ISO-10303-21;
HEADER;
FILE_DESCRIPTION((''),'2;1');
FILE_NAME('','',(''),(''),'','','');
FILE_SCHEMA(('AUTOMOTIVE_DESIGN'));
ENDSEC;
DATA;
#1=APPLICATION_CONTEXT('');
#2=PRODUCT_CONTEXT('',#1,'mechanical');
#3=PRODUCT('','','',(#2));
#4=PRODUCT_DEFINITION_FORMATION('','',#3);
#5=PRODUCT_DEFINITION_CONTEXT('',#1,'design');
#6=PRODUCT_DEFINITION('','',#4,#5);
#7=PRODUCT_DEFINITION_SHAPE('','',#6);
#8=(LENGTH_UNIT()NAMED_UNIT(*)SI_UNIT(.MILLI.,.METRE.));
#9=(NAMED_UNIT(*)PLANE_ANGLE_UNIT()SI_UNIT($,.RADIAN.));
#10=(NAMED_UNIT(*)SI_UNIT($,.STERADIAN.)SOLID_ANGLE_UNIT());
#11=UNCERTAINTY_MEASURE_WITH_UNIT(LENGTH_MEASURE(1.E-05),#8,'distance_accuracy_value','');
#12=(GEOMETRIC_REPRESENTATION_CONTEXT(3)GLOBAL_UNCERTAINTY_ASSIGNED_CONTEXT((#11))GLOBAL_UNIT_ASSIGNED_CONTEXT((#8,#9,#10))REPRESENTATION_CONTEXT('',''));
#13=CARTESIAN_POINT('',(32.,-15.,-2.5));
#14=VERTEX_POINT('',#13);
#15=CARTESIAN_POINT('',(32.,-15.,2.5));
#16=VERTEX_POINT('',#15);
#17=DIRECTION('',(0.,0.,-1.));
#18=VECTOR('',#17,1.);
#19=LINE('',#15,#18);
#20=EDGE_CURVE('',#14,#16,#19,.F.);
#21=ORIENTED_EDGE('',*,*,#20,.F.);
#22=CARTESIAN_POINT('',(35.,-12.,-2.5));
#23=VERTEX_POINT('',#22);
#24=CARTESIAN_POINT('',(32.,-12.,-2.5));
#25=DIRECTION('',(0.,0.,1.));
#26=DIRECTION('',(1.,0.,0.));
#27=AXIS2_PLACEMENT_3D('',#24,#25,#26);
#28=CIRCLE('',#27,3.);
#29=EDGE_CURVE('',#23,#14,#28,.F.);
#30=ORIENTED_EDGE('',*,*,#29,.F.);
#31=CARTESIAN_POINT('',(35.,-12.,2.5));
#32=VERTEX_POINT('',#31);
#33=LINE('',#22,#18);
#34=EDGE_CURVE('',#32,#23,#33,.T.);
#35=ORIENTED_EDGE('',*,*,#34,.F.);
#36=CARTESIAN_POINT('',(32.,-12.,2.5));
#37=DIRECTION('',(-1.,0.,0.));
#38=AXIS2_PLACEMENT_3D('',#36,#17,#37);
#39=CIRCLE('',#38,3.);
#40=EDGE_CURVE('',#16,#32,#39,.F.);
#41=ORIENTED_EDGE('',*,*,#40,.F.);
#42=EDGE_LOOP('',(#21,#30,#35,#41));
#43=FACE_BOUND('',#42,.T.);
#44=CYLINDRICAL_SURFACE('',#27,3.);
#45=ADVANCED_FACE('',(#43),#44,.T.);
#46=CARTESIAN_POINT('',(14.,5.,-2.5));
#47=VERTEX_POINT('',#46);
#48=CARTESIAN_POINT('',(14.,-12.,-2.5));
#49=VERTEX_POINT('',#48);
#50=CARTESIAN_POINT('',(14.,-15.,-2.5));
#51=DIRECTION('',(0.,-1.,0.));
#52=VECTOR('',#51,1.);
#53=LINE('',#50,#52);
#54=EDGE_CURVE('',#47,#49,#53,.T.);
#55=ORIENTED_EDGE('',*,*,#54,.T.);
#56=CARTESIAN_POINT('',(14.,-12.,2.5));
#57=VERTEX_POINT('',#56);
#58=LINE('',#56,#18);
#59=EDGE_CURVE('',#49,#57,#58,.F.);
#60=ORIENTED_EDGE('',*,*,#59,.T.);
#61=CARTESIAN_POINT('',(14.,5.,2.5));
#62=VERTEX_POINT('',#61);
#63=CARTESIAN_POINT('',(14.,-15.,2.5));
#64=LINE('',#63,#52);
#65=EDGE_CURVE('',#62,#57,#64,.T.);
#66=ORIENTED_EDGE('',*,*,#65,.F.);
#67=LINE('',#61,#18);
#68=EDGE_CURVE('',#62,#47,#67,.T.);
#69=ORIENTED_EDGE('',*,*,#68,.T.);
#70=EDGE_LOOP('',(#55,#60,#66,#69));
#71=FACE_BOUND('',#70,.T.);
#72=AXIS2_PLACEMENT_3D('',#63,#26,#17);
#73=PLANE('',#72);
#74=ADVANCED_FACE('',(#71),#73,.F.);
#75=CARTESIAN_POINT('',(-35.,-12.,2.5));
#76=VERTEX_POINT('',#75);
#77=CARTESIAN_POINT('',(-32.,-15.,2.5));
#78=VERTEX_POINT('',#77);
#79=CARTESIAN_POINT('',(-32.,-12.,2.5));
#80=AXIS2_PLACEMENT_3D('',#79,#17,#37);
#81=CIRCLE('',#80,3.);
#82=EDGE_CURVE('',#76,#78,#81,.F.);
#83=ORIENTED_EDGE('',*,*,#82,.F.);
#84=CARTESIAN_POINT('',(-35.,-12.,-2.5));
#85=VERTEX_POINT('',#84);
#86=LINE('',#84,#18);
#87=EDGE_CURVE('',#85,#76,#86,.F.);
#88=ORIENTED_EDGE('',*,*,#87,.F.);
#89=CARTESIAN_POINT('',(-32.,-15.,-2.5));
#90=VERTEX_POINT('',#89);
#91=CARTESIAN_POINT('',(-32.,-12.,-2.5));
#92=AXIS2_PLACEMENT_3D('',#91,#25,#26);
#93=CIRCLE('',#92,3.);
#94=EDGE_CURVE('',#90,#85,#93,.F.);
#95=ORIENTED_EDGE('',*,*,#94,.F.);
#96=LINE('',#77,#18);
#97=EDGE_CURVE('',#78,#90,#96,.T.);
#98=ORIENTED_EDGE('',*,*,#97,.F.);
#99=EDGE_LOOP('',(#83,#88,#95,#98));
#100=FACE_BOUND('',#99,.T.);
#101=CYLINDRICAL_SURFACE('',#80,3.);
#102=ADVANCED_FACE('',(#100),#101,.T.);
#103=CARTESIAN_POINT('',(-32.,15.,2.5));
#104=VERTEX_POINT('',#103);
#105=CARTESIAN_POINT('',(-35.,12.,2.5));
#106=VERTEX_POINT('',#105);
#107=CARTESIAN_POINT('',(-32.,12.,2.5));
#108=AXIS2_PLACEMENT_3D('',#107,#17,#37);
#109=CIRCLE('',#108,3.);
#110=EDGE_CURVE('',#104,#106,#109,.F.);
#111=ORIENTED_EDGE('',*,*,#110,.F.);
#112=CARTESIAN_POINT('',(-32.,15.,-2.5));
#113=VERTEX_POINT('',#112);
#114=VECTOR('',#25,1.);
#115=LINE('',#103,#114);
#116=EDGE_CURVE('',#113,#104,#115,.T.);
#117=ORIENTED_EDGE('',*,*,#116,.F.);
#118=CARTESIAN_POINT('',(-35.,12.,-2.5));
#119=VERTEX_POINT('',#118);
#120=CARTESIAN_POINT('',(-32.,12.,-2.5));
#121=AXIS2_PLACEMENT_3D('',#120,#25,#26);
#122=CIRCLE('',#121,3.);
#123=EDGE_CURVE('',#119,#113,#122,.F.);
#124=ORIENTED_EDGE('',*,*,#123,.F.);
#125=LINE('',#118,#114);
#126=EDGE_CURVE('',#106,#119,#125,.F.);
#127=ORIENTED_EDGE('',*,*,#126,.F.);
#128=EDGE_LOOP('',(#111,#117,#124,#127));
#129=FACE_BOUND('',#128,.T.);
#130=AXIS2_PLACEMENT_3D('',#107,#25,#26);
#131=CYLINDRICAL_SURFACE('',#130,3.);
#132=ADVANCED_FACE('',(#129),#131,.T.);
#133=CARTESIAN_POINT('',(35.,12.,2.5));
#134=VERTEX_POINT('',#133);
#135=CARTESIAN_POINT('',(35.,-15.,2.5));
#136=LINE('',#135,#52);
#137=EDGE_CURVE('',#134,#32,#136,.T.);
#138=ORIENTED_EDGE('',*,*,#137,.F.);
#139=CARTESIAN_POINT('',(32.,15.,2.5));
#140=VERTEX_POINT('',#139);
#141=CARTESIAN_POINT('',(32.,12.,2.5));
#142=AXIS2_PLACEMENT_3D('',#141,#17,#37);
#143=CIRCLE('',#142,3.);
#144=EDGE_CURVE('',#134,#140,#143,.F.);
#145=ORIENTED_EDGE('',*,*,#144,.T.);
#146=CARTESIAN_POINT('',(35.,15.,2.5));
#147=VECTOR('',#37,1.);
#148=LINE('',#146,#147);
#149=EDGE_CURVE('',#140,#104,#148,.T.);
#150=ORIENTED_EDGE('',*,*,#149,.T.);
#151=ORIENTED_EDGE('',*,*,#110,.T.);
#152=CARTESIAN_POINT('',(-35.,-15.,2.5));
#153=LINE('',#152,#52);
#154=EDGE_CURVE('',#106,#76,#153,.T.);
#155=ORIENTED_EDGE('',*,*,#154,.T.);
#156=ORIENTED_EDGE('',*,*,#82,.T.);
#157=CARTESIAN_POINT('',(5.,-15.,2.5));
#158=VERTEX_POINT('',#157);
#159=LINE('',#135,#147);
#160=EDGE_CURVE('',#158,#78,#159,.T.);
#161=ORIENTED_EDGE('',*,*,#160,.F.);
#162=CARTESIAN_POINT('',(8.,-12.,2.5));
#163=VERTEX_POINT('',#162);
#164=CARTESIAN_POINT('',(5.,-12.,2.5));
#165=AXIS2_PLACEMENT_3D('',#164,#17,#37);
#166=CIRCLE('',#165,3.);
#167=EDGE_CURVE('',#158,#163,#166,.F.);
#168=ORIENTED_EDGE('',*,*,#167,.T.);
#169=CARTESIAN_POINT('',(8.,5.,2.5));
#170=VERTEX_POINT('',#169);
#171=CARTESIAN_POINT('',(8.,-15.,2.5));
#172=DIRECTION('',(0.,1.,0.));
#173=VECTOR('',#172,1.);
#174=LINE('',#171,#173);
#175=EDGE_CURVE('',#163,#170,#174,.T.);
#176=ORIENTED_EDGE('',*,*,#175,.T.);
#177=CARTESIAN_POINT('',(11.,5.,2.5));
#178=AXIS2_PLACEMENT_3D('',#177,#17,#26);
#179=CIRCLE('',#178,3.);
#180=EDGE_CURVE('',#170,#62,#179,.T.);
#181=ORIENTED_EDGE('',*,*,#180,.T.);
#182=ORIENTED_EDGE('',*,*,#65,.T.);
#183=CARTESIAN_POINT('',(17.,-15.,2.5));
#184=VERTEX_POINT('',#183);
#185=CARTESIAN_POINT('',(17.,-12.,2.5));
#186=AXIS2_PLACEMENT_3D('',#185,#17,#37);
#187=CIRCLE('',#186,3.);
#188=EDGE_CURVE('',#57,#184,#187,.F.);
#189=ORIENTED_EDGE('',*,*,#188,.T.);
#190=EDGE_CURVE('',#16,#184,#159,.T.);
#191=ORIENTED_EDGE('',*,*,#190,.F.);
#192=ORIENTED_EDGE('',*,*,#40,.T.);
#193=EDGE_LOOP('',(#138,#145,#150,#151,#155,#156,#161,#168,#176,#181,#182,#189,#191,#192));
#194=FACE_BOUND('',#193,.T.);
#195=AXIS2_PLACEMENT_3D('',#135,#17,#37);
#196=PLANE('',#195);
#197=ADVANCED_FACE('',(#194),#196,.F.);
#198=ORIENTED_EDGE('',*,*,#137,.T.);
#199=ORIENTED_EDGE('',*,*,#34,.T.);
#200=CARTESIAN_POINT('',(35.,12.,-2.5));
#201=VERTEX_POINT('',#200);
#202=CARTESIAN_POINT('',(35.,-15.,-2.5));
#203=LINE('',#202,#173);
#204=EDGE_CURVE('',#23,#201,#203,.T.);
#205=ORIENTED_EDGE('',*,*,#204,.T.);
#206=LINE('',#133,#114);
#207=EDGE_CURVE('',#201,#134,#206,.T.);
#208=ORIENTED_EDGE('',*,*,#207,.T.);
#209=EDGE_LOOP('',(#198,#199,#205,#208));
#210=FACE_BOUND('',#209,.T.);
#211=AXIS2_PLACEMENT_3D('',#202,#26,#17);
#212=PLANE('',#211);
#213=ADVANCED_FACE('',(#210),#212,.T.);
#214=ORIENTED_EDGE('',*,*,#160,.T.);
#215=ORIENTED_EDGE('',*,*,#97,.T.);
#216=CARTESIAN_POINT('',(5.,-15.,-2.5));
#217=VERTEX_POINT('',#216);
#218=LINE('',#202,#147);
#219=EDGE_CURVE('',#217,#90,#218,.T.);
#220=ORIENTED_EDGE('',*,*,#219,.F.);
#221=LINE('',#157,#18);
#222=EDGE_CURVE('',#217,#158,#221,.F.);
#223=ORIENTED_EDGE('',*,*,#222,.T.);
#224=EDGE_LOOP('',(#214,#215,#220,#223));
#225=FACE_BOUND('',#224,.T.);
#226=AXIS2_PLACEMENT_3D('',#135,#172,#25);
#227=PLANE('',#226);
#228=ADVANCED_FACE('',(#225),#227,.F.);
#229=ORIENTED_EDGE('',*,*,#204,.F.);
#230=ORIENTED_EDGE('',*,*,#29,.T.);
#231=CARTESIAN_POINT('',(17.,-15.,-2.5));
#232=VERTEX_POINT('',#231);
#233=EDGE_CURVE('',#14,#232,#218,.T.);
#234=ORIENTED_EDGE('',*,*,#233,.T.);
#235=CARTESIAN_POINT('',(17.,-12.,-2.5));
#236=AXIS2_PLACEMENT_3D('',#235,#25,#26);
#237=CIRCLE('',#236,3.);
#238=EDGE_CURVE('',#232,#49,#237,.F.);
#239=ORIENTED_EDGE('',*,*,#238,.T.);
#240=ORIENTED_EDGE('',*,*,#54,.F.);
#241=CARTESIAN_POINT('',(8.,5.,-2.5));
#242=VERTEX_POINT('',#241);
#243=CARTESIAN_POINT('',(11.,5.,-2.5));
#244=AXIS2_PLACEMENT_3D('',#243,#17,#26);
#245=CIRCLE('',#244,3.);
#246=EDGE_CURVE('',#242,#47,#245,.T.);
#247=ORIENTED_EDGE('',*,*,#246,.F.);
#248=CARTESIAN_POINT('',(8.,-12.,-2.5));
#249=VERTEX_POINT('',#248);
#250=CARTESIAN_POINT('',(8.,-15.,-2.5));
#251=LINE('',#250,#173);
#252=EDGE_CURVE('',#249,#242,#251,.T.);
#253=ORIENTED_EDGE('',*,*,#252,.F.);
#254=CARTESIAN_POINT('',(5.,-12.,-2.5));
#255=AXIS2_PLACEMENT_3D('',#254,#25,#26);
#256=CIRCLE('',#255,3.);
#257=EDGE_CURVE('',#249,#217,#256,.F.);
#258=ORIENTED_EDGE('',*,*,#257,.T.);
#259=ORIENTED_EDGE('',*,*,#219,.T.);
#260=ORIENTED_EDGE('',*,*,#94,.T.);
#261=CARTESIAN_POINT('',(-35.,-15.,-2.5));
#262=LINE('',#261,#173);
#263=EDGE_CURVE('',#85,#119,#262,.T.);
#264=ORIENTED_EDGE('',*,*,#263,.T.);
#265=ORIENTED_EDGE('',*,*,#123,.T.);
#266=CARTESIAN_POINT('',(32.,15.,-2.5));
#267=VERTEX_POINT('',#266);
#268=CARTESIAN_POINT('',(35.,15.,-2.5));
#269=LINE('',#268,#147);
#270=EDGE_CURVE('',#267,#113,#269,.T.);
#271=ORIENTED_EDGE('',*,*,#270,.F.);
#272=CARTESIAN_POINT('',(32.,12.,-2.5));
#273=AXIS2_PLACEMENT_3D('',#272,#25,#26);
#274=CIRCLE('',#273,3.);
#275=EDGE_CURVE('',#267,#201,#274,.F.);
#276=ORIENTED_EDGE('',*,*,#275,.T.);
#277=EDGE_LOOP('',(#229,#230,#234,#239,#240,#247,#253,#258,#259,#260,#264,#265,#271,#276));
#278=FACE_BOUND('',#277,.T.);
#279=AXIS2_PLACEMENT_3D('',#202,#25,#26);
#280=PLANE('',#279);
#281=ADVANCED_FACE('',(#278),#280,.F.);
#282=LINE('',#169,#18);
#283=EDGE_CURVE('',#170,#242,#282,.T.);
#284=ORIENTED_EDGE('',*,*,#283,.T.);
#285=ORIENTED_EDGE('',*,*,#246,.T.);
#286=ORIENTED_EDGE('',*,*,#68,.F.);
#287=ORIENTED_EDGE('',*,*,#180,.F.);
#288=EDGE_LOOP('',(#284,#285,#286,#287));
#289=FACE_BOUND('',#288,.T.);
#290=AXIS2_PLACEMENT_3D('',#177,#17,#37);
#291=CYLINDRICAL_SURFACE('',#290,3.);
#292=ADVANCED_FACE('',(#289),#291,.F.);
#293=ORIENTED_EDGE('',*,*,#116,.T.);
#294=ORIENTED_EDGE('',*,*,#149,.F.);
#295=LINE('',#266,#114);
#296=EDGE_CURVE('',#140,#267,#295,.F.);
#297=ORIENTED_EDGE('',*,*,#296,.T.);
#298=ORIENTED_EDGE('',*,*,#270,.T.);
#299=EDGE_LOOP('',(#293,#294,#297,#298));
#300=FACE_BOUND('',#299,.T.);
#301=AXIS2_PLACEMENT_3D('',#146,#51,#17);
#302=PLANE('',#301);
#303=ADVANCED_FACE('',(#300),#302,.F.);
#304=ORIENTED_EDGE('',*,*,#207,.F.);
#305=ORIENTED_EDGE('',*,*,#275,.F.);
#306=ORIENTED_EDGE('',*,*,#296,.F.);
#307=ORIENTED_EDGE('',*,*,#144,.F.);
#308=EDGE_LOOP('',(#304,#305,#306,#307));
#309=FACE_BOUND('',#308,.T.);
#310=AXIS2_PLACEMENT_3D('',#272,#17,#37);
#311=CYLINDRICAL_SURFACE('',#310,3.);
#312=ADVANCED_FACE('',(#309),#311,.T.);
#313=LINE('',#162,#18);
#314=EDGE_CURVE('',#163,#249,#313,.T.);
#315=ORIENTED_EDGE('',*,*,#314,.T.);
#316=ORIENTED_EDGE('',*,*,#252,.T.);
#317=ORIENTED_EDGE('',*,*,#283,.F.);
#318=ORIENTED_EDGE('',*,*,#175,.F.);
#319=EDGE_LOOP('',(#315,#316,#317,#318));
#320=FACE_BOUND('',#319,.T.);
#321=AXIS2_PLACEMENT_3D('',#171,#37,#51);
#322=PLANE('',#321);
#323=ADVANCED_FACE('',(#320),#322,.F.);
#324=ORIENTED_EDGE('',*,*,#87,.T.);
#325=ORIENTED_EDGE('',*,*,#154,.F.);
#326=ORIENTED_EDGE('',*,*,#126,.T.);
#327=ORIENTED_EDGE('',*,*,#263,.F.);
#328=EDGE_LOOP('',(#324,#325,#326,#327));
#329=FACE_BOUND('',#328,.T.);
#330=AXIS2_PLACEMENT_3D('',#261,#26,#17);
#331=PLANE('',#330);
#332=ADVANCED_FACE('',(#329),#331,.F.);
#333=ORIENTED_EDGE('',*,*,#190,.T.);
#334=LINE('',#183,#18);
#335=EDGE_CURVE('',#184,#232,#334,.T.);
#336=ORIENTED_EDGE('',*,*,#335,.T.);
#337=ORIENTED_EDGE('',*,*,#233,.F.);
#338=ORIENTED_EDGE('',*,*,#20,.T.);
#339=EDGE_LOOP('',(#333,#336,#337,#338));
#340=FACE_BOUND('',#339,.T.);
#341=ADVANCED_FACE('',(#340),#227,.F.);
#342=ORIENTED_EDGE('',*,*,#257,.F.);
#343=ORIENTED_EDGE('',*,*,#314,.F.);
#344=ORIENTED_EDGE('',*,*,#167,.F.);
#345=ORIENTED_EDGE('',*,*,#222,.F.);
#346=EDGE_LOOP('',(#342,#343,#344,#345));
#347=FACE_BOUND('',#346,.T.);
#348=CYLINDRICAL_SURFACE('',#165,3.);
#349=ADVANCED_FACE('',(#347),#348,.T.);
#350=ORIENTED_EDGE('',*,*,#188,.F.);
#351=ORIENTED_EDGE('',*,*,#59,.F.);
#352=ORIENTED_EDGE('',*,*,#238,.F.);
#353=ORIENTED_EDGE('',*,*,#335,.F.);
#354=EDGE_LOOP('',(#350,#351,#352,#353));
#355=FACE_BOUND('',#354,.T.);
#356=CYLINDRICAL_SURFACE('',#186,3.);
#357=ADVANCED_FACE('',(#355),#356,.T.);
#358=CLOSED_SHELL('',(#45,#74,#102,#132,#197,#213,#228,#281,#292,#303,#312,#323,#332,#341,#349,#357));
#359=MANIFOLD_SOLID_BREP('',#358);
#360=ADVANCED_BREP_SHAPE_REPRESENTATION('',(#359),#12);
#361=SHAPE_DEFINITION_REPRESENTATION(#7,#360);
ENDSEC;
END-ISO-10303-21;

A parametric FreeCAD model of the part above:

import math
import FreeCAD as App
import Part
import Sketcher

V = App.Vector


def edges_at(feature, points):
    """Names of the edges that pass closest to the given points."""
    edges = feature.Shape.Edges
    near = lambda p: min(range(len(edges)), key=lambda i: edges[i].distToShape(Part.Vertex(*p))[0])
    return sorted({f"Edge{near(p) + 1}" for p in points})


def add_polygon(sketch, points):
    """Adds a closed chain of lines whose ends are joined by coincident constraints."""
    first, n = sketch.GeometryCount, len(points)
    for a, b in zip(points, points[1:] + points[:1]):
        sketch.addGeometry(Part.LineSegment(App.Vector(*a, 0), App.Vector(*b, 0)), False)
    for i in range(n):
        sketch.addConstraint(Sketcher.Constraint("Coincident", first + i, 2, first + (i + 1) % n, 1))

doc = App.newDocument("Part")
body = doc.addObject("PartDesign::Body", "Body")

# Sketch on YZ plane
sketch1 = body.newObject("Sketcher::SketchObject", "Sketch")
sketch1.AttachmentSupport = (doc.getObject("YZ_Plane"), [""])
sketch1.MapMode = "FlatFace"
sketch1.AttachmentOffset = App.Placement(V(0, 0, -35), App.Rotation())
add_polygon(sketch1, [(-15, 2), (-15, -2), (15, -2), (15, 2)])  # lines 0-3
sketch1.addConstraint(Sketcher.Constraint("Vertical", 0))
sketch1.addConstraint(Sketcher.Constraint("Horizontal", 1))
sketch1.addConstraint(Sketcher.Constraint("Vertical", 2))
sketch1.addConstraint(Sketcher.Constraint("Horizontal", 3))
sketch1.addConstraint(Sketcher.Constraint("Symmetric", 0, 2, 2, 2, -1, 1))
sketch1.addConstraint(Sketcher.Constraint("DistanceX", 1, 1, 1, 2, 30.0))
sketch1.addConstraint(Sketcher.Constraint("DistanceY", 0, 2, 0, 1, 5.0))
pad1 = body.newObject("PartDesign::Pad", "Pad")
pad1.Profile = sketch1
pad1.Length = 70

# Sketch on XY plane
sketch2 = body.newObject("Sketcher::SketchObject", "Sketch001")
sketch2.AttachmentSupport = (doc.getObject("XY_Plane"), [""])
sketch2.MapMode = "FlatFace"
sketch2.AttachmentOffset = App.Placement(V(0, 0, -2.5), App.Rotation())
sketch2.addGeometry(Part.LineSegment(V(14, -15, 0), V(8, -15, 0)), False)
sketch2.addGeometry(Part.LineSegment(V(8, -15, 0), V(8, 5, 0)), False)
sketch2.addGeometry(Part.ArcOfCircle(Part.Circle(V(11, 5, 0), V(0, 0, 1), 3), math.radians(0), math.radians(180)), False)
sketch2.addGeometry(Part.LineSegment(V(14, 5, 0), V(14, -15, 0)), False)
sketch2.addConstraint(Sketcher.Constraint("Coincident", 0, 2, 1, 1))
sketch2.addConstraint(Sketcher.Constraint("Tangent", 1, 2, 2, 2))
sketch2.addConstraint(Sketcher.Constraint("Tangent", 2, 1, 3, 1))
sketch2.addConstraint(Sketcher.Constraint("Coincident", 3, 2, 0, 1))
sketch2.addConstraint(Sketcher.Constraint("Horizontal", 0))
sketch2.addConstraint(Sketcher.Constraint("Vertical", 1))
sketch2.addConstraint(Sketcher.Constraint("Vertical", 3))
sketch2.addConstraint(Sketcher.Constraint("Radius", 2, 3.0))
sketch2.addConstraint(Sketcher.Constraint("DistanceY", 1, 1, 1, 2, 20.0))
sketch2.addConstraint(Sketcher.Constraint("DistanceX", -1, 1, 2, 3, 11.0))
sketch2.addConstraint(Sketcher.Constraint("DistanceY", -1, 1, 2, 3, 5.0))
pocket1 = body.newObject("PartDesign::Pocket", "Pocket")
pocket1.Profile = sketch2
pocket1.Type = "ThroughAll"
pocket1.Reversed = True
doc.recompute()

fillet = body.newObject("PartDesign::Fillet", "Fillet")
fillet.Base = (pocket1, edges_at(pocket1, [
    (35, 15, 0),
    (14, -15, 0),
    (8, -15, 0),
    (35, -15, 0),
    (-35, 15, 0),
    (-35, -15, 0),
]))
fillet.Radius = 3

doc.recompute()
